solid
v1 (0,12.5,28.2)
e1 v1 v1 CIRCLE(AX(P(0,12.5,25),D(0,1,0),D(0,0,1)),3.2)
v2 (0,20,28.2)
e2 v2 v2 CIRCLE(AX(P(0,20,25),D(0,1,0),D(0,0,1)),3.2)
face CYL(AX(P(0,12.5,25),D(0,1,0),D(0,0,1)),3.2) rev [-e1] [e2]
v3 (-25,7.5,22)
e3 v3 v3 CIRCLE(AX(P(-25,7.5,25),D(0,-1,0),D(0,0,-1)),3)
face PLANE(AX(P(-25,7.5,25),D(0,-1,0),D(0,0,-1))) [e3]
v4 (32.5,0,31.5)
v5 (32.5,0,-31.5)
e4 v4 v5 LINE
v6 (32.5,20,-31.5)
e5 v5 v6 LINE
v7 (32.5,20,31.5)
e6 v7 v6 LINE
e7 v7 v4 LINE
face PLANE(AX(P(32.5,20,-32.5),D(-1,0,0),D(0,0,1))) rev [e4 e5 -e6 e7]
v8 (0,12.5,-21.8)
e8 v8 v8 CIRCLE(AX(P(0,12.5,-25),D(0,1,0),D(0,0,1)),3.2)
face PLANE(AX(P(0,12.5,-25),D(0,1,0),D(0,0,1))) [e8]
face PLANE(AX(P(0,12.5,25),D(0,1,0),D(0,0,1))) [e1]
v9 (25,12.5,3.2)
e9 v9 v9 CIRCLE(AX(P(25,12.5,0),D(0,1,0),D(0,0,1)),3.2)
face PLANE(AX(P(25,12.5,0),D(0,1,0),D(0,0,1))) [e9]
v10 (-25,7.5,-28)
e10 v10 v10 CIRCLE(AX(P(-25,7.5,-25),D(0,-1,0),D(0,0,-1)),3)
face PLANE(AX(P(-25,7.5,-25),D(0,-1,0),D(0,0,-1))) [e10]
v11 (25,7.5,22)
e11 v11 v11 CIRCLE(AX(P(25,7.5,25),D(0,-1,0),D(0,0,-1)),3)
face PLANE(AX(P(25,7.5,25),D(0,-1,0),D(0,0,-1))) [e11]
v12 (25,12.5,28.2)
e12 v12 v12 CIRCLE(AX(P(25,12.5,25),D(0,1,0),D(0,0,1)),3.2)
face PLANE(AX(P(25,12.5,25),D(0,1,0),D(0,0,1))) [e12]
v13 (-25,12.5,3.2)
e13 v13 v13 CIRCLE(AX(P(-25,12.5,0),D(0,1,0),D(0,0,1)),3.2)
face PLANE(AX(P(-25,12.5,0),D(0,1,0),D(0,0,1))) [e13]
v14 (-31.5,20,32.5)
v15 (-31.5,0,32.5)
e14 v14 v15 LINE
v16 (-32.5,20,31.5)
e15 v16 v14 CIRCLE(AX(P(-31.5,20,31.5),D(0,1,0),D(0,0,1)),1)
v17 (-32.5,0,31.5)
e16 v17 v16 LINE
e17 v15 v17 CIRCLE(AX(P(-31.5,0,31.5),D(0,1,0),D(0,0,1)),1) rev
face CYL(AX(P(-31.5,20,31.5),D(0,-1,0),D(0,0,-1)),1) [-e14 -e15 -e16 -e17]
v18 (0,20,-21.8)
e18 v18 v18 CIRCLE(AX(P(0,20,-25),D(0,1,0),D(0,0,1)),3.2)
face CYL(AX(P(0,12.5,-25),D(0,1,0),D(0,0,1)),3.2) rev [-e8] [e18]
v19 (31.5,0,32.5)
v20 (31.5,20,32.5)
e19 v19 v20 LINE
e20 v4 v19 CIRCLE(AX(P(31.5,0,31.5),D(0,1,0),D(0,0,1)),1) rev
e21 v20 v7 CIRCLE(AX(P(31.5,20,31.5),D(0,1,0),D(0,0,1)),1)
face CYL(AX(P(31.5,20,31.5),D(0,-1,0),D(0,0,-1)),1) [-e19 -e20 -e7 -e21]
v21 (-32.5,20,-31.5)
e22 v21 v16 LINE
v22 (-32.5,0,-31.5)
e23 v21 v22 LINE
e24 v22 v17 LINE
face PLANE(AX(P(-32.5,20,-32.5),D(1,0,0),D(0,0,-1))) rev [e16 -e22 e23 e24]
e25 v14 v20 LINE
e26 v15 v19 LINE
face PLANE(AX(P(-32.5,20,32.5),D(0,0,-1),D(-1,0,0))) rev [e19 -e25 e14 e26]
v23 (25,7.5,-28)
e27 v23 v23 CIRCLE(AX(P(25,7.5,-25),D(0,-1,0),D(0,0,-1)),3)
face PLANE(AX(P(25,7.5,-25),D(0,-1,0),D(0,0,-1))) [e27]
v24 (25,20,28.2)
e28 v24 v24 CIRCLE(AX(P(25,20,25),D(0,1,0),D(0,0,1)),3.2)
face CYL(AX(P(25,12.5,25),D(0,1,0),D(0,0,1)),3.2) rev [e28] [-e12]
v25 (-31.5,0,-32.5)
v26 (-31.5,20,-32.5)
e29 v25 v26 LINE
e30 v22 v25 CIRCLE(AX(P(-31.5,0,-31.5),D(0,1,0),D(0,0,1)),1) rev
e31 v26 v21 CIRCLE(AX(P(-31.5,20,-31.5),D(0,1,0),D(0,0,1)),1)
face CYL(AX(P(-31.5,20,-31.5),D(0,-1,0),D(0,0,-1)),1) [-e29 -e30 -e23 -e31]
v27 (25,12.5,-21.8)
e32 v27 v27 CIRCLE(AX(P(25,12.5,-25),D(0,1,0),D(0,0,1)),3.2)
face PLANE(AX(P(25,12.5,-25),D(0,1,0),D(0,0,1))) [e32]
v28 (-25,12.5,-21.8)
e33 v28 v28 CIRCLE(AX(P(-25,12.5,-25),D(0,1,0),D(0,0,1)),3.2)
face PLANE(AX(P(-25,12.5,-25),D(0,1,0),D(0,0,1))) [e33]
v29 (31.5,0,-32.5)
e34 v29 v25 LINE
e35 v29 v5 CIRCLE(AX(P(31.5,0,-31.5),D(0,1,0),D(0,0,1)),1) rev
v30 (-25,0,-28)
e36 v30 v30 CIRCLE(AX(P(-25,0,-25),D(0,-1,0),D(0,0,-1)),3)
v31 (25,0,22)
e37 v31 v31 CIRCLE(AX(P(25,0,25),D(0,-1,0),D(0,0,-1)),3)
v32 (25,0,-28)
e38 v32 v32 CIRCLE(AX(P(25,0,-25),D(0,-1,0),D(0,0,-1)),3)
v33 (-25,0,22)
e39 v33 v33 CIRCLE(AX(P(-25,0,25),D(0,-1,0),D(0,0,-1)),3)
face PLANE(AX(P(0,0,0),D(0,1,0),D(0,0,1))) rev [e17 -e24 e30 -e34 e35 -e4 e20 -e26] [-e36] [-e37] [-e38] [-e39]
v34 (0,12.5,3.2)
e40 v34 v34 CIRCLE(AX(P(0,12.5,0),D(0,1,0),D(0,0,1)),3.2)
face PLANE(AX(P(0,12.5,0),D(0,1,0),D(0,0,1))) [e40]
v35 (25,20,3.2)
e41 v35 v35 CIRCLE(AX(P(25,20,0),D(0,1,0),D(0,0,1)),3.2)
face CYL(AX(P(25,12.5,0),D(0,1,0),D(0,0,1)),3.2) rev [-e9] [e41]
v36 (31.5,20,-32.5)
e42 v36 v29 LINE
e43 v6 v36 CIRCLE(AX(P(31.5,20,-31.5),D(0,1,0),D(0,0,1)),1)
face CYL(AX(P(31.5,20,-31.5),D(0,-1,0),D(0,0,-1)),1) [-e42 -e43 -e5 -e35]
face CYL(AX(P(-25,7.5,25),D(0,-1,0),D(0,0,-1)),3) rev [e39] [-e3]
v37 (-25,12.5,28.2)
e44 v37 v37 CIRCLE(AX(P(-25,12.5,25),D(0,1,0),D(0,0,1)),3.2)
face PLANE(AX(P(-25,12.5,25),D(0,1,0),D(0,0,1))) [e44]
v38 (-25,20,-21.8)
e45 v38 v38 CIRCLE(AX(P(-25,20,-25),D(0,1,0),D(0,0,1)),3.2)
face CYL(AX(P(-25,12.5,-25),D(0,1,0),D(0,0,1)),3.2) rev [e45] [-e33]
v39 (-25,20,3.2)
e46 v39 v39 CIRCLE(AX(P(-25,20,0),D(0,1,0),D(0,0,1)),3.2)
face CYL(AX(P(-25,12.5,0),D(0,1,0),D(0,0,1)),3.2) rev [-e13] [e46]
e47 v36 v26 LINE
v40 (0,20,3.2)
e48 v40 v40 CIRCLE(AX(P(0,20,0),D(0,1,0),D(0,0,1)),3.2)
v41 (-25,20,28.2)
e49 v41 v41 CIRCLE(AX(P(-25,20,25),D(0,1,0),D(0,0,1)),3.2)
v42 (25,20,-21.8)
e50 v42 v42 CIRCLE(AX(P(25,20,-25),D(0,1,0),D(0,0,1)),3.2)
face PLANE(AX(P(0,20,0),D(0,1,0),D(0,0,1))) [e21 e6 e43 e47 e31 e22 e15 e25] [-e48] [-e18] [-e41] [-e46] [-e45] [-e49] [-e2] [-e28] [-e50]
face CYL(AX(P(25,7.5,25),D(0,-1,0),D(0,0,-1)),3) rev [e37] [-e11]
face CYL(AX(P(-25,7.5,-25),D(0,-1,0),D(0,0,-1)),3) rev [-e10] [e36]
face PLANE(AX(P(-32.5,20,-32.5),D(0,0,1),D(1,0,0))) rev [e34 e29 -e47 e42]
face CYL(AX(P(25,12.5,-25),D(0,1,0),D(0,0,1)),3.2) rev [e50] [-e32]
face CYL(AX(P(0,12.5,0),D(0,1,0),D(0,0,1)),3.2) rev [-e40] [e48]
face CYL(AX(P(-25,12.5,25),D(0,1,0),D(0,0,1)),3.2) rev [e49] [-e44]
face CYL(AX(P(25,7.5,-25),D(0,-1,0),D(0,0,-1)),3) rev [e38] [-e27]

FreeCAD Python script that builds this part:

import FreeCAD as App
import Part
import Sketcher

V = App.Vector


def edges_at(feature, points):
    """Names of the edges that pass closest to the given points."""
    edges = feature.Shape.Edges
    near = lambda p: min(range(len(edges)), key=lambda i: edges[i].distToShape(Part.Vertex(*p))[0])
    return sorted({f"Edge{near(p) + 1}" for p in points})

doc = App.newDocument("Part")
body = doc.addObject("PartDesign::Body", "Body")

sketch1 = body.newObject("Sketcher::SketchObject", "Sketch")
sketch1.AttachmentSupport = (doc.getObject("XZ_Plane"), [""])
sketch1.MapMode = "FlatFace"
sketch1.addGeometry([
    Part.LineSegment(V(-32.5, -32.5, 0), V(-32.5, 32.5, 0)),
    Part.LineSegment(V(-32.5, 32.5, 0), V(32.5, 32.5, 0)),
    Part.LineSegment(V(32.5, 32.5, 0), V(32.5, -32.5, 0)),
    Part.LineSegment(V(32.5, -32.5, 0), V(-32.5, -32.5, 0)),
], False)
sketch1.addConstraint([
    Sketcher.Constraint("Coincident", 0, 2, 1, 1),
    Sketcher.Constraint("Coincident", 1, 2, 2, 1),
    Sketcher.Constraint("Coincident", 2, 2, 3, 1),
    Sketcher.Constraint("Coincident", 3, 2, 0, 1),
    Sketcher.Constraint("Vertical", 0),
    Sketcher.Constraint("Horizontal", 1),
    Sketcher.Constraint("Vertical", 2),
    Sketcher.Constraint("Horizontal", 3),
    Sketcher.Constraint("Symmetric", 0, 2, 2, 2, -1, 1),
    Sketcher.Constraint("Equal", 3, 0),
    Sketcher.Constraint("DistanceX", 1, 1, 1, 2, 65.0),
])
pad1 = body.newObject("PartDesign::Pad", "Pad")
pad1.Profile = sketch1
pad1.Length = 20
pad1.Reversed = True

sketch2 = body.newObject("Sketcher::SketchObject", "Sketch001")
sketch2.AttachmentSupport = (doc.getObject("XZ_Plane"), [""])
sketch2.MapMode = "FlatFace"
sketch2.addGeometry([
    Part.Circle(V(-25, 25, 0), V(0, 0, 1), 3),
    Part.Circle(V(25, 25, 0), V(0, 0, 1), 3),
    Part.Circle(V(25, -25, 0), V(0, 0, 1), 3),
    Part.Circle(V(-25, -25, 0), V(0, 0, 1), 3),
], False)
sketch2.addConstraint([
    Sketcher.Constraint("Equal", 0, 1),
    Sketcher.Constraint("Equal", 1, 2),
    Sketcher.Constraint("Equal", 2, 3),
    Sketcher.Constraint("Symmetric", 0, 3, 2, 3, -1, 1),
    Sketcher.Constraint("Symmetric", 1, 3, 3, 3, -1, 1),
    Sketcher.Constraint("Symmetric", 0, 3, 1, 3, -2),
    Sketcher.Constraint("Diameter", 0, 6.0),
    Sketcher.Constraint("DistanceX", 0, 3, -1, 1, 25.0),
    Sketcher.Constraint("DistanceY", -1, 1, 0, 3, 25.0),
])
pocket1 = body.newObject("PartDesign::Pocket", "Pocket")
pocket1.Profile = sketch2
pocket1.Length = 7.5

sketch3 = body.newObject("Sketcher::SketchObject", "Sketch002")
sketch3.AttachmentSupport = (doc.getObject("XZ_Plane"), [""])
sketch3.MapMode = "FlatFace"
sketch3.AttachmentOffset = App.Placement(V(0, 0, -20), App.Rotation())
sketch3.addGeometry([
    Part.Circle(V(-25, -25, 0), V(0, 0, 1), 3.2),
    Part.Circle(V(0, -25, 0), V(0, 0, 1), 3.2),
    Part.Circle(V(25, -25, 0), V(0, 0, 1), 3.2),
    Part.Circle(V(25, 0, 0), V(0, 0, 1), 3.2),
    Part.Circle(V(25, 25, 0), V(0, 0, 1), 3.2),
    Part.Circle(V(0, 25, 0), V(0, 0, 1), 3.2),
    Part.Circle(V(-25, 25, 0), V(0, 0, 1), 3.2),
    Part.Circle(V(-25, 0, 0), V(0, 0, 1), 3.2),
    Part.Circle(V(0, 0, 0), V(0, 0, 1), 3.2),
], False)
sketch3.addConstraint([
    Sketcher.Constraint("Coincident", 8, 3, -1, 1),
    Sketcher.Constraint("Equal", 0, 1),
    Sketcher.Constraint("Equal", 1, 2),
    Sketcher.Constraint("Equal", 2, 3),
    Sketcher.Constraint("Equal", 3, 4),
    Sketcher.Constraint("Equal", 4, 5),
    Sketcher.Constraint("Equal", 5, 6),
    Sketcher.Constraint("Equal", 6, 7),
    Sketcher.Constraint("Equal", 7, 8),
    Sketcher.Constraint("Symmetric", 0, 3, 4, 3, -1, 1),
    Sketcher.Constraint("Symmetric", 1, 3, 5, 3, -1, 1),
    Sketcher.Constraint("Symmetric", 2, 3, 6, 3, -1, 1),
    Sketcher.Constraint("Symmetric", 3, 3, 7, 3, -1, 1),
    Sketcher.Constraint("Symmetric", 0, 3, 2, 3, -2),
    Sketcher.Constraint("PointOnObject", 1, 3, -2),
    Sketcher.Constraint("PointOnObject", 3, 3, -1),
    Sketcher.Constraint("Horizontal", 0, 3, 1, 3),
    Sketcher.Constraint("Vertical", 2, 3, 3, 3),
    Sketcher.Constraint("Diameter", 0, 6.4),
    Sketcher.Constraint("DistanceX", 0, 3, -1, 1, 25.0),
    Sketcher.Constraint("DistanceY", 0, 3, -1, 1, 25.0),
])
pocket2 = body.newObject("PartDesign::Pocket", "Pocket001")
pocket2.Profile = sketch3
pocket2.Length = 7.5
pocket2.Reversed = True
doc.recompute()

fillet = body.newObject("PartDesign::Fillet", "Fillet")
fillet.Base = (pocket2, edges_at(pocket2, [
    (-32.5, 10, -32.5),
    (32.5, 10, -32.5),
    (32.5, 10, 32.5),
    (-32.5, 10, 32.5),
]))
fillet.Radius = 1

doc.recompute()
